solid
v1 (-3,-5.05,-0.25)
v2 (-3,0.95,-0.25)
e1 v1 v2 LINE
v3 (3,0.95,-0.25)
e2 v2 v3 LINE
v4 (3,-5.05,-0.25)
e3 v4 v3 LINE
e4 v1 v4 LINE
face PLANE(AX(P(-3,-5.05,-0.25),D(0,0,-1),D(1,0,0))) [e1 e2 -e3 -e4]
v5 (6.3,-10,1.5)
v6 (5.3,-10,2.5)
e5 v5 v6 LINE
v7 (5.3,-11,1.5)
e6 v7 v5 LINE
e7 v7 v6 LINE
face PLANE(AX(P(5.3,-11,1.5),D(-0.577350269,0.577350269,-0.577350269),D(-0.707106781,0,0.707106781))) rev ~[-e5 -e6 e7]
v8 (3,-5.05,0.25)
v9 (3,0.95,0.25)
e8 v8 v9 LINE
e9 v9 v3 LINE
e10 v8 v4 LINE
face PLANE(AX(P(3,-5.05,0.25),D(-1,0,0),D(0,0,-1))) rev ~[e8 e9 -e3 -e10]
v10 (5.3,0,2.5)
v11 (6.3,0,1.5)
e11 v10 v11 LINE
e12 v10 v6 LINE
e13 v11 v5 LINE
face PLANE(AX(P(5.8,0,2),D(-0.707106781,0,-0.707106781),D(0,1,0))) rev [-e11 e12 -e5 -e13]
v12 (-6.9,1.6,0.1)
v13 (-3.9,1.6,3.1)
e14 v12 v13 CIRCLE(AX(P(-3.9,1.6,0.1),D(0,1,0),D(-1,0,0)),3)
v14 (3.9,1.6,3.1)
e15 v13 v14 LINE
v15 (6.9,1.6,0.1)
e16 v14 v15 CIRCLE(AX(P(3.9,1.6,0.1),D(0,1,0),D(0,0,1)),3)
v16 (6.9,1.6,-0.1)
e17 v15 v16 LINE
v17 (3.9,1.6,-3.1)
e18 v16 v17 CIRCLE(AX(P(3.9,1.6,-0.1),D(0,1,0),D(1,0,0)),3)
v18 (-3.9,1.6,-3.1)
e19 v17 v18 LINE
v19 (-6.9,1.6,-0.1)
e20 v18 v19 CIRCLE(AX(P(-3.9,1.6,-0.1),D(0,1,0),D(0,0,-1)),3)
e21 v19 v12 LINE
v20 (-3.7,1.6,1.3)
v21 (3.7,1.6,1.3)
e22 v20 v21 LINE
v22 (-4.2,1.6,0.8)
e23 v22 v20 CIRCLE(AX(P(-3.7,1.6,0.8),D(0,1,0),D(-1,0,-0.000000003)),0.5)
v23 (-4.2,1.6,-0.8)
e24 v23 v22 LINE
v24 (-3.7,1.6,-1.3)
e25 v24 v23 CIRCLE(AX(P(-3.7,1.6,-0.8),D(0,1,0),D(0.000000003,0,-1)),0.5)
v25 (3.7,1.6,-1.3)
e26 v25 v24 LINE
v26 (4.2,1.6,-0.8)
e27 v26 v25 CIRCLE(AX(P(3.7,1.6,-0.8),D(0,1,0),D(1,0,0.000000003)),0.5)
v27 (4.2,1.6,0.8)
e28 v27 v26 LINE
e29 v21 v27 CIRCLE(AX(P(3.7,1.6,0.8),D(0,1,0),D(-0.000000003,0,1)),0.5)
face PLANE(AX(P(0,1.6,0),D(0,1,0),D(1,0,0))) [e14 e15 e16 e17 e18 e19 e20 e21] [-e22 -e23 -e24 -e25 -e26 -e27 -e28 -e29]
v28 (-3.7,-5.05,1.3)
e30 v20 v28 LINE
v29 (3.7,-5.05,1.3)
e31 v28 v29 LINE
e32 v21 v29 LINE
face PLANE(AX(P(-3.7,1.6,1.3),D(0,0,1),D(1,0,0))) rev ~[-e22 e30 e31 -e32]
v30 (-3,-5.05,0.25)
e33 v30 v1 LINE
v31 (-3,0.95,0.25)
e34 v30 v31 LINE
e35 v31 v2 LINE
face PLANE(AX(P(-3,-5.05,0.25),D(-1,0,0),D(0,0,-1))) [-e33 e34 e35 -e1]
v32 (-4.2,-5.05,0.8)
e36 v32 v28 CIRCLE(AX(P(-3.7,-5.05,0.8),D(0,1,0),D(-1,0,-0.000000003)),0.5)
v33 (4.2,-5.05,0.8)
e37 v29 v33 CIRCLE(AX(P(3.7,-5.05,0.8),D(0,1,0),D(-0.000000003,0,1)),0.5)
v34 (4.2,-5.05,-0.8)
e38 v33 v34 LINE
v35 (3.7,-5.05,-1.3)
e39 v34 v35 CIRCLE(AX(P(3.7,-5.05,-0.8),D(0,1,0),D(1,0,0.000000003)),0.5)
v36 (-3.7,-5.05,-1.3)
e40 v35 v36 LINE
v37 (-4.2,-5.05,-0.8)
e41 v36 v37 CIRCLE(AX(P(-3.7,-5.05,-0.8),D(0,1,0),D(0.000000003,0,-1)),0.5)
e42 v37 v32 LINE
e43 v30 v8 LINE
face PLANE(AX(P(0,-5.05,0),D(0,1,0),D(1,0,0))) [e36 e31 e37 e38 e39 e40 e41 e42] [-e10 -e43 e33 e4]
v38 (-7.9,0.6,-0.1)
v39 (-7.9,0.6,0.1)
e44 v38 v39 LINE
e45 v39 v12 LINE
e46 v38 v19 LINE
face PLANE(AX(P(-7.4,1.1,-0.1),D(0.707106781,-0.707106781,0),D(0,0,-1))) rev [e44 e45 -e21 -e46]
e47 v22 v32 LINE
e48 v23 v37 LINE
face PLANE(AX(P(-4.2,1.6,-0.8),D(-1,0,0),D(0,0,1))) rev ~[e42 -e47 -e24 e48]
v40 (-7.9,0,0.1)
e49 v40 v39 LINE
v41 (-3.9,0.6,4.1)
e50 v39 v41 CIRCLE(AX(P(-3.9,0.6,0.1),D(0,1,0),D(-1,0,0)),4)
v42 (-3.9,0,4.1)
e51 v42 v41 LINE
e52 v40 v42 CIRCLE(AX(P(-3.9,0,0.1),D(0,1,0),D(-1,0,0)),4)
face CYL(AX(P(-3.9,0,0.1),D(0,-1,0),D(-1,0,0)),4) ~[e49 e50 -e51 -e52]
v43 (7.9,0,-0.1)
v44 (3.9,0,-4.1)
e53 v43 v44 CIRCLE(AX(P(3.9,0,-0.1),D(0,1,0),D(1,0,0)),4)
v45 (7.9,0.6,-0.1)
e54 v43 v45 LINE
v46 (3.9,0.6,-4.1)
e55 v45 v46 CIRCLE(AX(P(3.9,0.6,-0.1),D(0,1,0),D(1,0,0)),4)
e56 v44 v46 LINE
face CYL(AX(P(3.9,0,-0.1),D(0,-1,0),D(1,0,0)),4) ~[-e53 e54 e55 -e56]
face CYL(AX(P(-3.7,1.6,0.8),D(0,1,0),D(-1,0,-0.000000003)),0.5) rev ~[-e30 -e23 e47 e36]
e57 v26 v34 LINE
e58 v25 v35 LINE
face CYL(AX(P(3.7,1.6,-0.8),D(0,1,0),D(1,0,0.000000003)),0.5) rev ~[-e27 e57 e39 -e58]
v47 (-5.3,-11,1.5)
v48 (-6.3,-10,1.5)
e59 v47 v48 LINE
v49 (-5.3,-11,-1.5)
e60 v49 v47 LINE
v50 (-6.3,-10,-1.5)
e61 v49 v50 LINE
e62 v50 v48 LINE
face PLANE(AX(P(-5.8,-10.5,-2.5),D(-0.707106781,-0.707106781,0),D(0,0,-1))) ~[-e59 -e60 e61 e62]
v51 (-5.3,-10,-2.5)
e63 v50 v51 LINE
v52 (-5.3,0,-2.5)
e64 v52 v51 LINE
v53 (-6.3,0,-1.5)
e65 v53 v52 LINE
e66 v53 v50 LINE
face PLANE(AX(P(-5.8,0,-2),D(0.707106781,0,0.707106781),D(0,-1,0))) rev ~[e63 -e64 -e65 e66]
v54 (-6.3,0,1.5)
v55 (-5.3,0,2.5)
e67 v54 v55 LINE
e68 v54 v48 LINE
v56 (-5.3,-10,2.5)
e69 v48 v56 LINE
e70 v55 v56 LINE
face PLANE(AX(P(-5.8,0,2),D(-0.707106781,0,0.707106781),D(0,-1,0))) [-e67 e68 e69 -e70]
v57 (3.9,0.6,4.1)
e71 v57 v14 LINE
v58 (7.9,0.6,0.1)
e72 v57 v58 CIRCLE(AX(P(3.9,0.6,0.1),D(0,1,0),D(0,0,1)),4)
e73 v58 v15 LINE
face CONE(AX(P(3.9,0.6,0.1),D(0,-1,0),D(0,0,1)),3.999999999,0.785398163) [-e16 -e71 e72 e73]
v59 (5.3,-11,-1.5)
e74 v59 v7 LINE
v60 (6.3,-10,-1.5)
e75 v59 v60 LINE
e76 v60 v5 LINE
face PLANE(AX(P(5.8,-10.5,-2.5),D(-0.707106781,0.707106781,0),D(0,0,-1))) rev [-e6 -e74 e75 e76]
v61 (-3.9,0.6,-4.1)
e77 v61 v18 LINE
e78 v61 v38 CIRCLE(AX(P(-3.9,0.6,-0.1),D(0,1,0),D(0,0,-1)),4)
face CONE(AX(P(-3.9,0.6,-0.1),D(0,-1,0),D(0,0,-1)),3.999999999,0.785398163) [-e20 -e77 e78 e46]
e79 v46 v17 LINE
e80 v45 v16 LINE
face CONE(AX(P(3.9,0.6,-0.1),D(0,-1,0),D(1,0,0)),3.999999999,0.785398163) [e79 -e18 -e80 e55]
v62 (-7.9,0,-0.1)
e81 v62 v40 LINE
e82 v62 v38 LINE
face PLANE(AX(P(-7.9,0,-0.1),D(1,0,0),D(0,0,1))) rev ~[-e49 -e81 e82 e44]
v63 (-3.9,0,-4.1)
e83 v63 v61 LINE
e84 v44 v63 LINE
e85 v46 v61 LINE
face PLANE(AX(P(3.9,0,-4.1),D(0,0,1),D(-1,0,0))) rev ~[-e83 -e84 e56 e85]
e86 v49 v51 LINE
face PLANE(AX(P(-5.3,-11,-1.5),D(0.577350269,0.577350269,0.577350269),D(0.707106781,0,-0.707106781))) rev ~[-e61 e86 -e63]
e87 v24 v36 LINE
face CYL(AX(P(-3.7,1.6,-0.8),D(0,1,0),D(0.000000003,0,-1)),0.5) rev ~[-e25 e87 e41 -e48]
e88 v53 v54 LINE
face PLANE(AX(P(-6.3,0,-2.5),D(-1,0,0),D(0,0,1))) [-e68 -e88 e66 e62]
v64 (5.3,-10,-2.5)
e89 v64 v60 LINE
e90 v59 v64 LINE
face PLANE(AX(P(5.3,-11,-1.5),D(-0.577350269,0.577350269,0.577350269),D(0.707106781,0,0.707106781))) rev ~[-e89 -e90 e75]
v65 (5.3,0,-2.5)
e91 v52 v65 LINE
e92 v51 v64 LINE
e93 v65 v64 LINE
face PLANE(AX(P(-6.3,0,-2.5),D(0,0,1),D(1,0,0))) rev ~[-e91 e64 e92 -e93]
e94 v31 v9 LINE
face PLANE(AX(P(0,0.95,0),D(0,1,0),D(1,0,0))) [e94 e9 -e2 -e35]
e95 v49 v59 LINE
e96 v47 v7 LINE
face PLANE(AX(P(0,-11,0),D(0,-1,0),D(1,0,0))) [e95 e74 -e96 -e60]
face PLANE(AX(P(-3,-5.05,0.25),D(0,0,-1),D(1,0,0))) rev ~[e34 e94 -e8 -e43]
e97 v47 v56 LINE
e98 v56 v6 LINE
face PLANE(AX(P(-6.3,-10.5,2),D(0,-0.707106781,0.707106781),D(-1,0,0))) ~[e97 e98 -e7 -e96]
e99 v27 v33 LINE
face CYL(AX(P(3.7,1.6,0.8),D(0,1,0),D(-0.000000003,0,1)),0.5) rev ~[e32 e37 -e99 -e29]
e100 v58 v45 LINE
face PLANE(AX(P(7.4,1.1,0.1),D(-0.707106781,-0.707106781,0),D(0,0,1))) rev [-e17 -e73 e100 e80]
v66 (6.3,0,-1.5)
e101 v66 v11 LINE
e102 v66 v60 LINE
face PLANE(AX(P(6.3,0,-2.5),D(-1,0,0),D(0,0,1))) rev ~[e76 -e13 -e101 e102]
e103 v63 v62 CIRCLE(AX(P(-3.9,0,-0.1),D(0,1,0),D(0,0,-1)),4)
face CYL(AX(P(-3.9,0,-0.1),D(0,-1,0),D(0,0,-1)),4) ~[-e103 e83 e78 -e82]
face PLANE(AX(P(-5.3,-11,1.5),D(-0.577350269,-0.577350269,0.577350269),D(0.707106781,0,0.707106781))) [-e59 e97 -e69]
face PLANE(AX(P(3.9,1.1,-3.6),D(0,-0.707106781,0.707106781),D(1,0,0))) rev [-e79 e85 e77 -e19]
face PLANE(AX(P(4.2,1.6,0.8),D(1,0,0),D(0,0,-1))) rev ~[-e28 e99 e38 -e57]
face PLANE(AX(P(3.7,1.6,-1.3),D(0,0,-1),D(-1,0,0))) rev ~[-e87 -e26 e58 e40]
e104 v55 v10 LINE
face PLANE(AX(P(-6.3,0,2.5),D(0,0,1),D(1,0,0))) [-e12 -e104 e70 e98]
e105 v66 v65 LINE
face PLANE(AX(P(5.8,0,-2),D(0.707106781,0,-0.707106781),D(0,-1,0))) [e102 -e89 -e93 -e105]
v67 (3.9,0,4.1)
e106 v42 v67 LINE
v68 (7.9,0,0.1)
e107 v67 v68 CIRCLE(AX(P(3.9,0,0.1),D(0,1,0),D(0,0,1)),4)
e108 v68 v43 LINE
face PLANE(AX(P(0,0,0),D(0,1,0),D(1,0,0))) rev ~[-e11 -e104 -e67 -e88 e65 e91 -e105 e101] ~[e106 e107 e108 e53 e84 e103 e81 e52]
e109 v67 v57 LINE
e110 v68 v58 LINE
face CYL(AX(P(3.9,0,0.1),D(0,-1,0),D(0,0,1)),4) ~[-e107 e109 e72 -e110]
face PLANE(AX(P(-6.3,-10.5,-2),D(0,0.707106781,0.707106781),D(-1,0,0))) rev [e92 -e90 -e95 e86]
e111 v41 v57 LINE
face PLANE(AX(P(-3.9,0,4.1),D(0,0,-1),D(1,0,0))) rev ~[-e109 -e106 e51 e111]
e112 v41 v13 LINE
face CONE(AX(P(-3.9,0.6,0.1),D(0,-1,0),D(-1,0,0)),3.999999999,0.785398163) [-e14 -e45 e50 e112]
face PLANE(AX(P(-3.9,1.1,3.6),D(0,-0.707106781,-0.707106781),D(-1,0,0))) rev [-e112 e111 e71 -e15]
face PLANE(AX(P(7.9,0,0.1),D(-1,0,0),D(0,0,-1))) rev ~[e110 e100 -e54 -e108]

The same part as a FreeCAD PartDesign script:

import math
import FreeCAD as App
import Part
import Sketcher


def edges_at(feature, points):
    """Names of the edges that pass closest to the given points."""
    edges = feature.Shape.Edges
    near = lambda p: min(range(len(edges)), key=lambda i: edges[i].distToShape(Part.Vertex(*p))[0])
    return sorted({f"Edge{near(p) + 1}" for p in points})

doc = App.newDocument("Part")
body = doc.addObject("PartDesign::Body", "Body")

sketch1 = body.newObject("Sketcher::SketchObject", "Sketch")
sketch1.AttachmentSupport = (doc.getObject("XZ_Plane"), [""])
sketch1.MapMode = "FlatFace"
sketch1.addGeometry([
    Part.LineSegment(App.Vector(-3.9, 4.1, 0), App.Vector(3.9, 4.1, 0)),
    Part.ArcOfCircle(Part.Circle(App.Vector(3.9, 0.1, 0), App.Vector(0, 0, 1), 4), math.radians(0), math.radians(90)),
    Part.LineSegment(App.Vector(7.9, 0.1, 0), App.Vector(7.9, -0.1, 0)),
    Part.ArcOfCircle(Part.Circle(App.Vector(3.9, -0.1, 0), App.Vector(0, 0, 1), 4), math.radians(-90), math.radians(0)),
    Part.LineSegment(App.Vector(3.9, -4.1, 0), App.Vector(-3.9, -4.1, 0)),
    Part.ArcOfCircle(Part.Circle(App.Vector(-3.9, -0.1, 0), App.Vector(0, 0, 1), 4), math.radians(180), math.radians(270)),
    Part.LineSegment(App.Vector(-7.9, -0.1, 0), App.Vector(-7.9, 0.1, 0)),
    Part.ArcOfCircle(Part.Circle(App.Vector(-3.9, 0.1, 0), App.Vector(0, 0, 1), 4), math.radians(90), math.radians(180)),
], False)
sketch1.addConstraint([
    Sketcher.Constraint("Tangent", 0, 2, 1, 2),
    Sketcher.Constraint("Tangent", 1, 1, 2, 1),
    Sketcher.Constraint("Tangent", 2, 2, 3, 2),
    Sketcher.Constraint("Tangent", 3, 1, 4, 1),
    Sketcher.Constraint("Tangent", 4, 2, 5, 2),
    Sketcher.Constraint("Tangent", 5, 1, 6, 1),
    Sketcher.Constraint("Tangent", 6, 2, 7, 2),
    Sketcher.Constraint("Tangent", 7, 1, 0, 1),
    Sketcher.Constraint("Horizontal", 0),
    Sketcher.Constraint("Vertical", 2),
    Sketcher.Constraint("Horizontal", 4),
    Sketcher.Constraint("Vertical", 6),
    Sketcher.Constraint("Equal", 1, 3),
    Sketcher.Constraint("Equal", 3, 5),
    Sketcher.Constraint("Equal", 5, 7),
    Sketcher.Constraint("Symmetric", 1, 3, 5, 3, -1, 1),
    Sketcher.Constraint("Radius", 1, 4.0),
    Sketcher.Constraint("DistanceX", 0, 1, 0, 2, 7.8),
    Sketcher.Constraint("DistanceY", 2, 2, 2, 1, 0.2),
])
pad1 = body.newObject("PartDesign::Pad", "Pad")
pad1.Profile = sketch1
pad1.Length = 1.6
pad1.Reversed = True
doc.recompute()

chamfer = body.newObject("PartDesign::Chamfer", "Chamfer")
chamfer.Base = (pad1, edges_at(pad1, [
    (6.728, 1.6, -2.928),
    (0, 1.6, -4.1),
    (-6.728, 1.6, -2.928),
    (-7.9, 1.6, 0),
    (-6.728, 1.6, 2.928),
    (0, 1.6, 4.1),
    (6.728, 1.6, 2.928),
    (7.9, 1.6, 0),
]))
chamfer.Size = 1

sketch2 = body.newObject("Sketcher::SketchObject", "Sketch001")
sketch2.AttachmentSupport = (doc.getObject("XZ_Plane"), [""])
sketch2.MapMode = "FlatFace"
sketch2.addGeometry([
    Part.LineSegment(App.Vector(-6, 2, 0), App.Vector(-6, -2, 0)),
    Part.LineSegment(App.Vector(-6, -2, 0), App.Vector(6, -2, 0)),
    Part.LineSegment(App.Vector(6, -2, 0), App.Vector(6, 2, 0)),
    Part.LineSegment(App.Vector(6, 2, 0), App.Vector(-6, 2, 0)),
], False)
sketch2.addConstraint([
    Sketcher.Constraint("Coincident", 0, 2, 1, 1),
    Sketcher.Constraint("Coincident", 1, 2, 2, 1),
    Sketcher.Constraint("Coincident", 2, 2, 3, 1),
    Sketcher.Constraint("Coincident", 3, 2, 0, 1),
    Sketcher.Constraint("Vertical", 0),
    Sketcher.Constraint("Horizontal", 1),
    Sketcher.Constraint("Vertical", 2),
    Sketcher.Constraint("Horizontal", 3),
    Sketcher.Constraint("Symmetric", 0, 2, 2, 2, -1, 1),
    Sketcher.Constraint("DistanceY", 0, 2, 0, 1, 5.0),
    Sketcher.Constraint("DistanceX", 1, 1, 1, 2, 12.6),
])
pad2 = body.newObject("PartDesign::Pad", "Pad001")
pad2.Profile = sketch2
pad2.Length = 11
doc.recompute()

chamfer2 = body.newObject("PartDesign::Chamfer", "Chamfer001")
chamfer2.Base = (pad2, edges_at(pad2, [
    (-6.3, -5.5, 2.5),
    (-6.3, -5.5, -2.5),
    (6.3, -5.5, -2.5),
    (6.3, -5.5, 2.5),
    (-6.3, -11, 0),
    (0, -11, -2.5),
    (6.3, -11, 0),
    (0, -11, 2.5),
]))
chamfer2.Size = 1

sketch3 = body.newObject("Sketcher::SketchObject", "Sketch002")
sketch3.AttachmentSupport = (doc.getObject("XZ_Plane"), [""])
sketch3.MapMode = "FlatFace"
sketch3.AttachmentOffset = App.Placement(App.Vector(0, 0, -1.6), App.Rotation())
sketch3.addGeometry([
    Part.LineSegment(App.Vector(-3.7, 1.3, 0), App.Vector(3.7, 1.3, 0)),
    Part.ArcOfCircle(Part.Circle(App.Vector(3.7, 0.8, 0), App.Vector(0, 0, 1), 0.5), math.radians(0), math.radians(90)),
    Part.LineSegment(App.Vector(4.2, 0.8, 0), App.Vector(4.2, -0.8, 0)),
    Part.ArcOfCircle(Part.Circle(App.Vector(3.7, -0.8, 0), App.Vector(0, 0, 1), 0.5), math.radians(-90), math.radians(0)),
    Part.LineSegment(App.Vector(3.7, -1.3, 0), App.Vector(-3.7, -1.3, 0)),
    Part.ArcOfCircle(Part.Circle(App.Vector(-3.7, -0.8, 0), App.Vector(0, 0, 1), 0.5), math.radians(180), math.radians(270)),
    Part.LineSegment(App.Vector(-4.2, -0.8, 0), App.Vector(-4.2, 0.8, 0)),
    Part.ArcOfCircle(Part.Circle(App.Vector(-3.7, 0.8, 0), App.Vector(0, 0, 1), 0.5), math.radians(90), math.radians(180)),
], False)
sketch3.addConstraint([
    Sketcher.Constraint("Tangent", 0, 2, 1, 2),
    Sketcher.Constraint("Tangent", 1, 1, 2, 1),
    Sketcher.Constraint("Tangent", 2, 2, 3, 2),
    Sketcher.Constraint("Tangent", 3, 1, 4, 1),
    Sketcher.Constraint("Tangent", 4, 2, 5, 2),
    Sketcher.Constraint("Tangent", 5, 1, 6, 1),
    Sketcher.Constraint("Tangent", 6, 2, 7, 2),
    Sketcher.Constraint("Tangent", 7, 1, 0, 1),
    Sketcher.Constraint("Horizontal", 0),
    Sketcher.Constraint("Vertical", 2),
    Sketcher.Constraint("Horizontal", 4),
    Sketcher.Constraint("Vertical", 6),
    Sketcher.Constraint("Equal", 1, 3),
    Sketcher.Constraint("Equal", 3, 5),
    Sketcher.Constraint("Equal", 5, 7),
    Sketcher.Constraint("Symmetric", 1, 3, 5, 3, -1, 1),
    Sketcher.Constraint("Radius", 1, 0.5),
    Sketcher.Constraint("DistanceX", 0, 1, 0, 2, 7.4),
    Sketcher.Constraint("DistanceY", 2, 2, 2, 1, 1.6),
])
pocket1 = body.newObject("PartDesign::Pocket", "Pocket")
pocket1.Profile = sketch3
pocket1.Length = 6.65
pocket1.Reversed = True

sketch4 = body.newObject("Sketcher::SketchObject", "Sketch003")
sketch4.AttachmentSupport = (doc.getObject("XZ_Plane"), [""])
sketch4.MapMode = "FlatFace"
sketch4.AttachmentOffset = App.Placement(App.Vector(0, 0, 5.05), App.Rotation())
sketch4.addGeometry([
    Part.LineSegment(App.Vector(-3, -0.2, 0), App.Vector(-3, 0.2, 0)),
    Part.LineSegment(App.Vector(-3, 0.2, 0), App.Vector(3, 0.2, 0)),
    Part.LineSegment(App.Vector(3, 0.2, 0), App.Vector(3, -0.2, 0)),
    Part.LineSegment(App.Vector(3, -0.2, 0), App.Vector(-3, -0.2, 0)),
], False)
sketch4.addConstraint([
    Sketcher.Constraint("Coincident", 0, 2, 1, 1),
    Sketcher.Constraint("Coincident", 1, 2, 2, 1),
    Sketcher.Constraint("Coincident", 2, 2, 3, 1),
    Sketcher.Constraint("Coincident", 3, 2, 0, 1),
    Sketcher.Constraint("Vertical", 0),
    Sketcher.Constraint("Horizontal", 1),
    Sketcher.Constraint("Vertical", 2),
    Sketcher.Constraint("Horizontal", 3),
    Sketcher.Constraint("Symmetric", 0, 2, 2, 2, -1, 1),
    Sketcher.Constraint("DistanceX", 1, 1, 1, 2, 6.0),
    Sketcher.Constraint("DistanceY", 0, 1, 0, 2, 0.5),
])
pad3 = body.newObject("PartDesign::Pad", "Pad002")
pad3.Profile = sketch4
pad3.Length = 6
pad3.Reversed = True

doc.recompute()
